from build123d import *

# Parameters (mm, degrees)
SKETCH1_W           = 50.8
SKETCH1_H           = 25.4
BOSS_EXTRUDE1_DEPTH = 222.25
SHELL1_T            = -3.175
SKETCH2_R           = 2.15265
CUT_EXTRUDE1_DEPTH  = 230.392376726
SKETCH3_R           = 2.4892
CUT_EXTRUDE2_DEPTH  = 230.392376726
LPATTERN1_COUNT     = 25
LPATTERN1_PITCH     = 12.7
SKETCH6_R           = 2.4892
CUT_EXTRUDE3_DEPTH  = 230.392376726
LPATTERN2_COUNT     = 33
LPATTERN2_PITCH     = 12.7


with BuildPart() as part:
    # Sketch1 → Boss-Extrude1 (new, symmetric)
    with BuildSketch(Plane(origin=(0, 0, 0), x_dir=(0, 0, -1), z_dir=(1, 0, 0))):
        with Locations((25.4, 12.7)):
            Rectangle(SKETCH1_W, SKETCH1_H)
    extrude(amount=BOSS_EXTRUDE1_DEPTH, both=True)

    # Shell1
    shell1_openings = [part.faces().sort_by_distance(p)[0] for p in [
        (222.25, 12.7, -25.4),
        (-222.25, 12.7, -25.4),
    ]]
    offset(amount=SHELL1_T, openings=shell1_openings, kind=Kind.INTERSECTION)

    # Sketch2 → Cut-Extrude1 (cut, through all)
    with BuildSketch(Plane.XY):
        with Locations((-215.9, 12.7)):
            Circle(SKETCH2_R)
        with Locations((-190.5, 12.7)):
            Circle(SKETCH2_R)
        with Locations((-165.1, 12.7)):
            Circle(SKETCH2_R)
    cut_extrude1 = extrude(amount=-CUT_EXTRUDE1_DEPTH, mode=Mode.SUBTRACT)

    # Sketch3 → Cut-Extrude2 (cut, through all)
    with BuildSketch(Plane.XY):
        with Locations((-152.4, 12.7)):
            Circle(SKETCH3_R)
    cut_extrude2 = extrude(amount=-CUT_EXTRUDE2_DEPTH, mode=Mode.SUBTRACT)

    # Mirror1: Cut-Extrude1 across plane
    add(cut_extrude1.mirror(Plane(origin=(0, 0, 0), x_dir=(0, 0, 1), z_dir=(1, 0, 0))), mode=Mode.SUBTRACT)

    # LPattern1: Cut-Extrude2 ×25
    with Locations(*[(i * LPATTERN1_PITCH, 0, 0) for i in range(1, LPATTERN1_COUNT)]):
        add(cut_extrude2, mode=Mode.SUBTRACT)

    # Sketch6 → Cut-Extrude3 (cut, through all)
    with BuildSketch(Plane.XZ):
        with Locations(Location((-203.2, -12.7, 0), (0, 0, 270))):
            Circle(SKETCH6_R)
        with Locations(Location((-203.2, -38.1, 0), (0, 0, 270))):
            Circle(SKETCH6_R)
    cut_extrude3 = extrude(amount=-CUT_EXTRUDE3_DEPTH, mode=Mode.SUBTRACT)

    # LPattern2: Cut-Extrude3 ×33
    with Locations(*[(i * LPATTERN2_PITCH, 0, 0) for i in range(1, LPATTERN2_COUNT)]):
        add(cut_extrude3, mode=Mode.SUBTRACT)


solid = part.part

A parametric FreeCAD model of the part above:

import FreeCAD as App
import Part
import Sketcher

V = App.Vector
Q = App.Units.Quantity


def faces_at(feature, points):
    """Names of the faces that lie closest to the given points."""
    faces = feature.Shape.Faces
    near = lambda p: min(range(len(faces)), key=lambda i: faces[i].distToShape(Part.Vertex(*p))[0])
    return sorted({f"Face{near(p) + 1}" for p in points})


def add_polygon(sketch, points):
    """Adds a closed chain of lines whose ends are joined by coincident constraints."""
    first, n = sketch.GeometryCount, len(points)
    for a, b in zip(points, points[1:] + points[:1]):
        sketch.addGeometry(Part.LineSegment(App.Vector(*a, 0), App.Vector(*b, 0)), False)
    for i in range(n):
        sketch.addConstraint(Sketcher.Constraint("Coincident", first + i, 2, first + (i + 1) % n, 1))

doc = App.newDocument("Part")
params = doc.addObject("Spreadsheet::Sheet", "Params")
for row, (alias, value) in enumerate([
    ("sketch1_width", "1 in"),
    ("sketch1_height", "2 in"),
    ("pad1_length", "17.5 in"),
    ("thickness_wall", "0.125 in"),
    ("sketch3_diameter", "0.196 in"),
    ("linearpattern_pitch", "0.5 in"),
    ("sketch4_diameter", "0.196 in"),
    ("linearpattern2_pitch", "0.5 in"),
], start=1):
    params.set(f"A{row}", alias)
    params.set(f"B{row}", "=" + value)
    params.setAlias(f"B{row}", alias)

body = doc.addObject("PartDesign::Body", "Body")

# Sketch on YZ plane
sketch1 = doc.addObject("Sketcher::SketchObject", "Sketch")
body.addObject(sketch1)
sketch1.AttachmentSupport = (doc.YZ_Plane, [""])
sketch1.MapMode = "FlatFace"
add_polygon(sketch1, [(25, 0), (0, 0), (0, -51), (25, -51)])  # lines 0-3
sketch1.addConstraint(Sketcher.Constraint("Horizontal", 0))
sketch1.addConstraint(Sketcher.Constraint("Vertical", 1))
sketch1.addConstraint(Sketcher.Constraint("Horizontal", 2))
sketch1.addConstraint(Sketcher.Constraint("Vertical", 3))
sketch1.addConstraint(Sketcher.Constraint("Coincident", 0, 2, -1, 1))
sketch1.addConstraint(Sketcher.Constraint("DistanceX", 0, 2, 0, 1, Q("1 in")))
sketch1.addConstraint(Sketcher.Constraint("DistanceY", 1, 2, 1, 1, Q("2 in")))
sketch1.setExpression("Constraints[9]", "Params.sketch1_width")
sketch1.setExpression("Constraints[10]", "Params.sketch1_height")
pad1 = doc.addObject("PartDesign::Pad", "Pad")
body.addObject(pad1)
pad1.Profile = sketch1
pad1.setExpression("Length", "Params.pad1_length")
pad1.Midplane = True
doc.recompute()

thickness = doc.addObject("PartDesign::Thickness", "Thickness")
body.addObject(thickness)
thickness.Base = (pad1, faces_at(pad1, [(222.25, 12.7, -25.4), (-222.25, 12.7, -25.4)]))
thickness.setExpression("Value", "Params.thickness_wall")
thickness.Reversed = True
thickness.Join = "Intersection"

# Sketch on XY plane
sketch2 = doc.addObject("Sketcher::SketchObject", "Sketch001")
body.addObject(sketch2)
sketch2.AttachmentSupport = (doc.XY_Plane, [""])
sketch2.MapMode = "FlatFace"
sketch2.addGeometry(Part.Circle(V(-215.9, 12.7, 0), V(0, 0, 1), 2.2), False)
sketch2.addGeometry(Part.Circle(V(-190.5, 12.7, 0), V(0, 0, 1), 2.2), False)
sketch2.addGeometry(Part.Circle(V(-165.1, 12.7, 0), V(0, 0, 1), 2.2), False)
sketch2.addConstraint(Sketcher.Constraint("Equal", 0, 1))
sketch2.addConstraint(Sketcher.Constraint("Equal", 1, 2))
sketch2.addConstraint(Sketcher.Constraint("Horizontal", 0, 3, 1, 3))
sketch2.addConstraint(Sketcher.Constraint("Horizontal", 1, 3, 2, 3))
sketch2.addConstraint(Sketcher.Constraint("DistanceX", 0, 3, 1, 3, Q("1 in")))
sketch2.addConstraint(Sketcher.Constraint("DistanceX", 1, 3, 2, 3, Q("1 in")))
sketch2.addConstraint(Sketcher.Constraint("Diameter", 0, Q("0.1695 in")))
sketch2.addConstraint(Sketcher.Constraint("DistanceX", 0, 3, -1, 1, Q("8.5 in")))
sketch2.addConstraint(Sketcher.Constraint("DistanceY", -1, 1, 0, 3, Q("0.5 in")))
pocket1 = doc.addObject("PartDesign::Pocket", "Pocket")
body.addObject(pocket1)
pocket1.Profile = sketch2
pocket1.Type = "ThroughAll"

# Sketch on XY plane
sketch3 = doc.addObject("Sketcher::SketchObject", "Sketch002")
body.addObject(sketch3)
sketch3.AttachmentSupport = (doc.XY_Plane, [""])
sketch3.MapMode = "FlatFace"
sketch3.addGeometry(Part.Circle(V(-152.4, 12.7, 0), V(0, 0, 1), 2.5), False)
sketch3.addConstraint(Sketcher.Constraint("Diameter", 0, Q("0.196 in")))
sketch3.addConstraint(Sketcher.Constraint("DistanceX", 0, 3, -1, 1, Q("6 in")))
sketch3.addConstraint(Sketcher.Constraint("DistanceY", -1, 1, 0, 3, Q("0.5 in")))
sketch3.setExpression("Constraints[0]", "Params.sketch3_diameter")
pocket2 = doc.addObject("PartDesign::Pocket", "Pocket001")
body.addObject(pocket2)
pocket2.Profile = sketch3
pocket2.Type = "ThroughAll"
doc.recompute()

mirrored = doc.addObject("PartDesign::Mirrored", "Mirrored")
body.addObject(mirrored)
mirrored.Originals = [pocket1]
mirrored.MirrorPlane = (doc.YZ_Plane, [""])
body.Tip = mirrored
doc.recompute()

linearpattern = doc.addObject("PartDesign::LinearPattern", "LinearPattern")
body.addObject(linearpattern)
linearpattern.Originals = [pocket2]
linearpattern.Direction = (doc.X_Axis, [""])
linearpattern.Mode = "offset"
linearpattern.setExpression("Offset", "Params.linearpattern_pitch")
linearpattern.Occurrences = 25
body.Tip = linearpattern

# Sketch on XZ plane
sketch4 = doc.addObject("Sketcher::SketchObject", "Sketch003")
body.addObject(sketch4)
sketch4.AttachmentSupport = (doc.XZ_Plane, [""])
sketch4.MapMode = "FlatFace"
sketch4.addGeometry(Part.Circle(V(-203.2, -12.7, 0), V(0, 0, 1), 2.5), False)
sketch4.addGeometry(Part.Circle(V(-203.2, -38.1, 0), V(0, 0, 1), 2.5), False)
sketch4.addConstraint(Sketcher.Constraint("Equal", 0, 1))
sketch4.addConstraint(Sketcher.Constraint("Vertical", 0, 3, 1, 3))
sketch4.addConstraint(Sketcher.Constraint("Diameter", 0, Q("0.196 in")))
sketch4.addConstraint(Sketcher.Constraint("DistanceX", 0, 3, -1, 1, Q("8 in")))
sketch4.addConstraint(Sketcher.Constraint("DistanceY", 1, 3, 0, 3, Q("1 in")))
sketch4.addConstraint(Sketcher.Constraint("DistanceY", 0, 3, -1, 1, Q("0.5 in")))
sketch4.setExpression("Constraints[2]", "Params.sketch4_diameter")
pocket3 = doc.addObject("PartDesign::Pocket", "Pocket002")
body.addObject(pocket3)
pocket3.Profile = sketch4
pocket3.Type = "ThroughAll"
doc.recompute()

linearpattern2 = doc.addObject("PartDesign::LinearPattern", "LinearPattern001")
body.addObject(linearpattern2)
linearpattern2.Originals = [pocket3]
linearpattern2.Direction = (doc.X_Axis, [""])
linearpattern2.Mode = "offset"
linearpattern2.setExpression("Offset", "Params.linearpattern2_pitch")
linearpattern2.Occurrences = 33
body.Tip = linearpattern2

doc.recompute()
